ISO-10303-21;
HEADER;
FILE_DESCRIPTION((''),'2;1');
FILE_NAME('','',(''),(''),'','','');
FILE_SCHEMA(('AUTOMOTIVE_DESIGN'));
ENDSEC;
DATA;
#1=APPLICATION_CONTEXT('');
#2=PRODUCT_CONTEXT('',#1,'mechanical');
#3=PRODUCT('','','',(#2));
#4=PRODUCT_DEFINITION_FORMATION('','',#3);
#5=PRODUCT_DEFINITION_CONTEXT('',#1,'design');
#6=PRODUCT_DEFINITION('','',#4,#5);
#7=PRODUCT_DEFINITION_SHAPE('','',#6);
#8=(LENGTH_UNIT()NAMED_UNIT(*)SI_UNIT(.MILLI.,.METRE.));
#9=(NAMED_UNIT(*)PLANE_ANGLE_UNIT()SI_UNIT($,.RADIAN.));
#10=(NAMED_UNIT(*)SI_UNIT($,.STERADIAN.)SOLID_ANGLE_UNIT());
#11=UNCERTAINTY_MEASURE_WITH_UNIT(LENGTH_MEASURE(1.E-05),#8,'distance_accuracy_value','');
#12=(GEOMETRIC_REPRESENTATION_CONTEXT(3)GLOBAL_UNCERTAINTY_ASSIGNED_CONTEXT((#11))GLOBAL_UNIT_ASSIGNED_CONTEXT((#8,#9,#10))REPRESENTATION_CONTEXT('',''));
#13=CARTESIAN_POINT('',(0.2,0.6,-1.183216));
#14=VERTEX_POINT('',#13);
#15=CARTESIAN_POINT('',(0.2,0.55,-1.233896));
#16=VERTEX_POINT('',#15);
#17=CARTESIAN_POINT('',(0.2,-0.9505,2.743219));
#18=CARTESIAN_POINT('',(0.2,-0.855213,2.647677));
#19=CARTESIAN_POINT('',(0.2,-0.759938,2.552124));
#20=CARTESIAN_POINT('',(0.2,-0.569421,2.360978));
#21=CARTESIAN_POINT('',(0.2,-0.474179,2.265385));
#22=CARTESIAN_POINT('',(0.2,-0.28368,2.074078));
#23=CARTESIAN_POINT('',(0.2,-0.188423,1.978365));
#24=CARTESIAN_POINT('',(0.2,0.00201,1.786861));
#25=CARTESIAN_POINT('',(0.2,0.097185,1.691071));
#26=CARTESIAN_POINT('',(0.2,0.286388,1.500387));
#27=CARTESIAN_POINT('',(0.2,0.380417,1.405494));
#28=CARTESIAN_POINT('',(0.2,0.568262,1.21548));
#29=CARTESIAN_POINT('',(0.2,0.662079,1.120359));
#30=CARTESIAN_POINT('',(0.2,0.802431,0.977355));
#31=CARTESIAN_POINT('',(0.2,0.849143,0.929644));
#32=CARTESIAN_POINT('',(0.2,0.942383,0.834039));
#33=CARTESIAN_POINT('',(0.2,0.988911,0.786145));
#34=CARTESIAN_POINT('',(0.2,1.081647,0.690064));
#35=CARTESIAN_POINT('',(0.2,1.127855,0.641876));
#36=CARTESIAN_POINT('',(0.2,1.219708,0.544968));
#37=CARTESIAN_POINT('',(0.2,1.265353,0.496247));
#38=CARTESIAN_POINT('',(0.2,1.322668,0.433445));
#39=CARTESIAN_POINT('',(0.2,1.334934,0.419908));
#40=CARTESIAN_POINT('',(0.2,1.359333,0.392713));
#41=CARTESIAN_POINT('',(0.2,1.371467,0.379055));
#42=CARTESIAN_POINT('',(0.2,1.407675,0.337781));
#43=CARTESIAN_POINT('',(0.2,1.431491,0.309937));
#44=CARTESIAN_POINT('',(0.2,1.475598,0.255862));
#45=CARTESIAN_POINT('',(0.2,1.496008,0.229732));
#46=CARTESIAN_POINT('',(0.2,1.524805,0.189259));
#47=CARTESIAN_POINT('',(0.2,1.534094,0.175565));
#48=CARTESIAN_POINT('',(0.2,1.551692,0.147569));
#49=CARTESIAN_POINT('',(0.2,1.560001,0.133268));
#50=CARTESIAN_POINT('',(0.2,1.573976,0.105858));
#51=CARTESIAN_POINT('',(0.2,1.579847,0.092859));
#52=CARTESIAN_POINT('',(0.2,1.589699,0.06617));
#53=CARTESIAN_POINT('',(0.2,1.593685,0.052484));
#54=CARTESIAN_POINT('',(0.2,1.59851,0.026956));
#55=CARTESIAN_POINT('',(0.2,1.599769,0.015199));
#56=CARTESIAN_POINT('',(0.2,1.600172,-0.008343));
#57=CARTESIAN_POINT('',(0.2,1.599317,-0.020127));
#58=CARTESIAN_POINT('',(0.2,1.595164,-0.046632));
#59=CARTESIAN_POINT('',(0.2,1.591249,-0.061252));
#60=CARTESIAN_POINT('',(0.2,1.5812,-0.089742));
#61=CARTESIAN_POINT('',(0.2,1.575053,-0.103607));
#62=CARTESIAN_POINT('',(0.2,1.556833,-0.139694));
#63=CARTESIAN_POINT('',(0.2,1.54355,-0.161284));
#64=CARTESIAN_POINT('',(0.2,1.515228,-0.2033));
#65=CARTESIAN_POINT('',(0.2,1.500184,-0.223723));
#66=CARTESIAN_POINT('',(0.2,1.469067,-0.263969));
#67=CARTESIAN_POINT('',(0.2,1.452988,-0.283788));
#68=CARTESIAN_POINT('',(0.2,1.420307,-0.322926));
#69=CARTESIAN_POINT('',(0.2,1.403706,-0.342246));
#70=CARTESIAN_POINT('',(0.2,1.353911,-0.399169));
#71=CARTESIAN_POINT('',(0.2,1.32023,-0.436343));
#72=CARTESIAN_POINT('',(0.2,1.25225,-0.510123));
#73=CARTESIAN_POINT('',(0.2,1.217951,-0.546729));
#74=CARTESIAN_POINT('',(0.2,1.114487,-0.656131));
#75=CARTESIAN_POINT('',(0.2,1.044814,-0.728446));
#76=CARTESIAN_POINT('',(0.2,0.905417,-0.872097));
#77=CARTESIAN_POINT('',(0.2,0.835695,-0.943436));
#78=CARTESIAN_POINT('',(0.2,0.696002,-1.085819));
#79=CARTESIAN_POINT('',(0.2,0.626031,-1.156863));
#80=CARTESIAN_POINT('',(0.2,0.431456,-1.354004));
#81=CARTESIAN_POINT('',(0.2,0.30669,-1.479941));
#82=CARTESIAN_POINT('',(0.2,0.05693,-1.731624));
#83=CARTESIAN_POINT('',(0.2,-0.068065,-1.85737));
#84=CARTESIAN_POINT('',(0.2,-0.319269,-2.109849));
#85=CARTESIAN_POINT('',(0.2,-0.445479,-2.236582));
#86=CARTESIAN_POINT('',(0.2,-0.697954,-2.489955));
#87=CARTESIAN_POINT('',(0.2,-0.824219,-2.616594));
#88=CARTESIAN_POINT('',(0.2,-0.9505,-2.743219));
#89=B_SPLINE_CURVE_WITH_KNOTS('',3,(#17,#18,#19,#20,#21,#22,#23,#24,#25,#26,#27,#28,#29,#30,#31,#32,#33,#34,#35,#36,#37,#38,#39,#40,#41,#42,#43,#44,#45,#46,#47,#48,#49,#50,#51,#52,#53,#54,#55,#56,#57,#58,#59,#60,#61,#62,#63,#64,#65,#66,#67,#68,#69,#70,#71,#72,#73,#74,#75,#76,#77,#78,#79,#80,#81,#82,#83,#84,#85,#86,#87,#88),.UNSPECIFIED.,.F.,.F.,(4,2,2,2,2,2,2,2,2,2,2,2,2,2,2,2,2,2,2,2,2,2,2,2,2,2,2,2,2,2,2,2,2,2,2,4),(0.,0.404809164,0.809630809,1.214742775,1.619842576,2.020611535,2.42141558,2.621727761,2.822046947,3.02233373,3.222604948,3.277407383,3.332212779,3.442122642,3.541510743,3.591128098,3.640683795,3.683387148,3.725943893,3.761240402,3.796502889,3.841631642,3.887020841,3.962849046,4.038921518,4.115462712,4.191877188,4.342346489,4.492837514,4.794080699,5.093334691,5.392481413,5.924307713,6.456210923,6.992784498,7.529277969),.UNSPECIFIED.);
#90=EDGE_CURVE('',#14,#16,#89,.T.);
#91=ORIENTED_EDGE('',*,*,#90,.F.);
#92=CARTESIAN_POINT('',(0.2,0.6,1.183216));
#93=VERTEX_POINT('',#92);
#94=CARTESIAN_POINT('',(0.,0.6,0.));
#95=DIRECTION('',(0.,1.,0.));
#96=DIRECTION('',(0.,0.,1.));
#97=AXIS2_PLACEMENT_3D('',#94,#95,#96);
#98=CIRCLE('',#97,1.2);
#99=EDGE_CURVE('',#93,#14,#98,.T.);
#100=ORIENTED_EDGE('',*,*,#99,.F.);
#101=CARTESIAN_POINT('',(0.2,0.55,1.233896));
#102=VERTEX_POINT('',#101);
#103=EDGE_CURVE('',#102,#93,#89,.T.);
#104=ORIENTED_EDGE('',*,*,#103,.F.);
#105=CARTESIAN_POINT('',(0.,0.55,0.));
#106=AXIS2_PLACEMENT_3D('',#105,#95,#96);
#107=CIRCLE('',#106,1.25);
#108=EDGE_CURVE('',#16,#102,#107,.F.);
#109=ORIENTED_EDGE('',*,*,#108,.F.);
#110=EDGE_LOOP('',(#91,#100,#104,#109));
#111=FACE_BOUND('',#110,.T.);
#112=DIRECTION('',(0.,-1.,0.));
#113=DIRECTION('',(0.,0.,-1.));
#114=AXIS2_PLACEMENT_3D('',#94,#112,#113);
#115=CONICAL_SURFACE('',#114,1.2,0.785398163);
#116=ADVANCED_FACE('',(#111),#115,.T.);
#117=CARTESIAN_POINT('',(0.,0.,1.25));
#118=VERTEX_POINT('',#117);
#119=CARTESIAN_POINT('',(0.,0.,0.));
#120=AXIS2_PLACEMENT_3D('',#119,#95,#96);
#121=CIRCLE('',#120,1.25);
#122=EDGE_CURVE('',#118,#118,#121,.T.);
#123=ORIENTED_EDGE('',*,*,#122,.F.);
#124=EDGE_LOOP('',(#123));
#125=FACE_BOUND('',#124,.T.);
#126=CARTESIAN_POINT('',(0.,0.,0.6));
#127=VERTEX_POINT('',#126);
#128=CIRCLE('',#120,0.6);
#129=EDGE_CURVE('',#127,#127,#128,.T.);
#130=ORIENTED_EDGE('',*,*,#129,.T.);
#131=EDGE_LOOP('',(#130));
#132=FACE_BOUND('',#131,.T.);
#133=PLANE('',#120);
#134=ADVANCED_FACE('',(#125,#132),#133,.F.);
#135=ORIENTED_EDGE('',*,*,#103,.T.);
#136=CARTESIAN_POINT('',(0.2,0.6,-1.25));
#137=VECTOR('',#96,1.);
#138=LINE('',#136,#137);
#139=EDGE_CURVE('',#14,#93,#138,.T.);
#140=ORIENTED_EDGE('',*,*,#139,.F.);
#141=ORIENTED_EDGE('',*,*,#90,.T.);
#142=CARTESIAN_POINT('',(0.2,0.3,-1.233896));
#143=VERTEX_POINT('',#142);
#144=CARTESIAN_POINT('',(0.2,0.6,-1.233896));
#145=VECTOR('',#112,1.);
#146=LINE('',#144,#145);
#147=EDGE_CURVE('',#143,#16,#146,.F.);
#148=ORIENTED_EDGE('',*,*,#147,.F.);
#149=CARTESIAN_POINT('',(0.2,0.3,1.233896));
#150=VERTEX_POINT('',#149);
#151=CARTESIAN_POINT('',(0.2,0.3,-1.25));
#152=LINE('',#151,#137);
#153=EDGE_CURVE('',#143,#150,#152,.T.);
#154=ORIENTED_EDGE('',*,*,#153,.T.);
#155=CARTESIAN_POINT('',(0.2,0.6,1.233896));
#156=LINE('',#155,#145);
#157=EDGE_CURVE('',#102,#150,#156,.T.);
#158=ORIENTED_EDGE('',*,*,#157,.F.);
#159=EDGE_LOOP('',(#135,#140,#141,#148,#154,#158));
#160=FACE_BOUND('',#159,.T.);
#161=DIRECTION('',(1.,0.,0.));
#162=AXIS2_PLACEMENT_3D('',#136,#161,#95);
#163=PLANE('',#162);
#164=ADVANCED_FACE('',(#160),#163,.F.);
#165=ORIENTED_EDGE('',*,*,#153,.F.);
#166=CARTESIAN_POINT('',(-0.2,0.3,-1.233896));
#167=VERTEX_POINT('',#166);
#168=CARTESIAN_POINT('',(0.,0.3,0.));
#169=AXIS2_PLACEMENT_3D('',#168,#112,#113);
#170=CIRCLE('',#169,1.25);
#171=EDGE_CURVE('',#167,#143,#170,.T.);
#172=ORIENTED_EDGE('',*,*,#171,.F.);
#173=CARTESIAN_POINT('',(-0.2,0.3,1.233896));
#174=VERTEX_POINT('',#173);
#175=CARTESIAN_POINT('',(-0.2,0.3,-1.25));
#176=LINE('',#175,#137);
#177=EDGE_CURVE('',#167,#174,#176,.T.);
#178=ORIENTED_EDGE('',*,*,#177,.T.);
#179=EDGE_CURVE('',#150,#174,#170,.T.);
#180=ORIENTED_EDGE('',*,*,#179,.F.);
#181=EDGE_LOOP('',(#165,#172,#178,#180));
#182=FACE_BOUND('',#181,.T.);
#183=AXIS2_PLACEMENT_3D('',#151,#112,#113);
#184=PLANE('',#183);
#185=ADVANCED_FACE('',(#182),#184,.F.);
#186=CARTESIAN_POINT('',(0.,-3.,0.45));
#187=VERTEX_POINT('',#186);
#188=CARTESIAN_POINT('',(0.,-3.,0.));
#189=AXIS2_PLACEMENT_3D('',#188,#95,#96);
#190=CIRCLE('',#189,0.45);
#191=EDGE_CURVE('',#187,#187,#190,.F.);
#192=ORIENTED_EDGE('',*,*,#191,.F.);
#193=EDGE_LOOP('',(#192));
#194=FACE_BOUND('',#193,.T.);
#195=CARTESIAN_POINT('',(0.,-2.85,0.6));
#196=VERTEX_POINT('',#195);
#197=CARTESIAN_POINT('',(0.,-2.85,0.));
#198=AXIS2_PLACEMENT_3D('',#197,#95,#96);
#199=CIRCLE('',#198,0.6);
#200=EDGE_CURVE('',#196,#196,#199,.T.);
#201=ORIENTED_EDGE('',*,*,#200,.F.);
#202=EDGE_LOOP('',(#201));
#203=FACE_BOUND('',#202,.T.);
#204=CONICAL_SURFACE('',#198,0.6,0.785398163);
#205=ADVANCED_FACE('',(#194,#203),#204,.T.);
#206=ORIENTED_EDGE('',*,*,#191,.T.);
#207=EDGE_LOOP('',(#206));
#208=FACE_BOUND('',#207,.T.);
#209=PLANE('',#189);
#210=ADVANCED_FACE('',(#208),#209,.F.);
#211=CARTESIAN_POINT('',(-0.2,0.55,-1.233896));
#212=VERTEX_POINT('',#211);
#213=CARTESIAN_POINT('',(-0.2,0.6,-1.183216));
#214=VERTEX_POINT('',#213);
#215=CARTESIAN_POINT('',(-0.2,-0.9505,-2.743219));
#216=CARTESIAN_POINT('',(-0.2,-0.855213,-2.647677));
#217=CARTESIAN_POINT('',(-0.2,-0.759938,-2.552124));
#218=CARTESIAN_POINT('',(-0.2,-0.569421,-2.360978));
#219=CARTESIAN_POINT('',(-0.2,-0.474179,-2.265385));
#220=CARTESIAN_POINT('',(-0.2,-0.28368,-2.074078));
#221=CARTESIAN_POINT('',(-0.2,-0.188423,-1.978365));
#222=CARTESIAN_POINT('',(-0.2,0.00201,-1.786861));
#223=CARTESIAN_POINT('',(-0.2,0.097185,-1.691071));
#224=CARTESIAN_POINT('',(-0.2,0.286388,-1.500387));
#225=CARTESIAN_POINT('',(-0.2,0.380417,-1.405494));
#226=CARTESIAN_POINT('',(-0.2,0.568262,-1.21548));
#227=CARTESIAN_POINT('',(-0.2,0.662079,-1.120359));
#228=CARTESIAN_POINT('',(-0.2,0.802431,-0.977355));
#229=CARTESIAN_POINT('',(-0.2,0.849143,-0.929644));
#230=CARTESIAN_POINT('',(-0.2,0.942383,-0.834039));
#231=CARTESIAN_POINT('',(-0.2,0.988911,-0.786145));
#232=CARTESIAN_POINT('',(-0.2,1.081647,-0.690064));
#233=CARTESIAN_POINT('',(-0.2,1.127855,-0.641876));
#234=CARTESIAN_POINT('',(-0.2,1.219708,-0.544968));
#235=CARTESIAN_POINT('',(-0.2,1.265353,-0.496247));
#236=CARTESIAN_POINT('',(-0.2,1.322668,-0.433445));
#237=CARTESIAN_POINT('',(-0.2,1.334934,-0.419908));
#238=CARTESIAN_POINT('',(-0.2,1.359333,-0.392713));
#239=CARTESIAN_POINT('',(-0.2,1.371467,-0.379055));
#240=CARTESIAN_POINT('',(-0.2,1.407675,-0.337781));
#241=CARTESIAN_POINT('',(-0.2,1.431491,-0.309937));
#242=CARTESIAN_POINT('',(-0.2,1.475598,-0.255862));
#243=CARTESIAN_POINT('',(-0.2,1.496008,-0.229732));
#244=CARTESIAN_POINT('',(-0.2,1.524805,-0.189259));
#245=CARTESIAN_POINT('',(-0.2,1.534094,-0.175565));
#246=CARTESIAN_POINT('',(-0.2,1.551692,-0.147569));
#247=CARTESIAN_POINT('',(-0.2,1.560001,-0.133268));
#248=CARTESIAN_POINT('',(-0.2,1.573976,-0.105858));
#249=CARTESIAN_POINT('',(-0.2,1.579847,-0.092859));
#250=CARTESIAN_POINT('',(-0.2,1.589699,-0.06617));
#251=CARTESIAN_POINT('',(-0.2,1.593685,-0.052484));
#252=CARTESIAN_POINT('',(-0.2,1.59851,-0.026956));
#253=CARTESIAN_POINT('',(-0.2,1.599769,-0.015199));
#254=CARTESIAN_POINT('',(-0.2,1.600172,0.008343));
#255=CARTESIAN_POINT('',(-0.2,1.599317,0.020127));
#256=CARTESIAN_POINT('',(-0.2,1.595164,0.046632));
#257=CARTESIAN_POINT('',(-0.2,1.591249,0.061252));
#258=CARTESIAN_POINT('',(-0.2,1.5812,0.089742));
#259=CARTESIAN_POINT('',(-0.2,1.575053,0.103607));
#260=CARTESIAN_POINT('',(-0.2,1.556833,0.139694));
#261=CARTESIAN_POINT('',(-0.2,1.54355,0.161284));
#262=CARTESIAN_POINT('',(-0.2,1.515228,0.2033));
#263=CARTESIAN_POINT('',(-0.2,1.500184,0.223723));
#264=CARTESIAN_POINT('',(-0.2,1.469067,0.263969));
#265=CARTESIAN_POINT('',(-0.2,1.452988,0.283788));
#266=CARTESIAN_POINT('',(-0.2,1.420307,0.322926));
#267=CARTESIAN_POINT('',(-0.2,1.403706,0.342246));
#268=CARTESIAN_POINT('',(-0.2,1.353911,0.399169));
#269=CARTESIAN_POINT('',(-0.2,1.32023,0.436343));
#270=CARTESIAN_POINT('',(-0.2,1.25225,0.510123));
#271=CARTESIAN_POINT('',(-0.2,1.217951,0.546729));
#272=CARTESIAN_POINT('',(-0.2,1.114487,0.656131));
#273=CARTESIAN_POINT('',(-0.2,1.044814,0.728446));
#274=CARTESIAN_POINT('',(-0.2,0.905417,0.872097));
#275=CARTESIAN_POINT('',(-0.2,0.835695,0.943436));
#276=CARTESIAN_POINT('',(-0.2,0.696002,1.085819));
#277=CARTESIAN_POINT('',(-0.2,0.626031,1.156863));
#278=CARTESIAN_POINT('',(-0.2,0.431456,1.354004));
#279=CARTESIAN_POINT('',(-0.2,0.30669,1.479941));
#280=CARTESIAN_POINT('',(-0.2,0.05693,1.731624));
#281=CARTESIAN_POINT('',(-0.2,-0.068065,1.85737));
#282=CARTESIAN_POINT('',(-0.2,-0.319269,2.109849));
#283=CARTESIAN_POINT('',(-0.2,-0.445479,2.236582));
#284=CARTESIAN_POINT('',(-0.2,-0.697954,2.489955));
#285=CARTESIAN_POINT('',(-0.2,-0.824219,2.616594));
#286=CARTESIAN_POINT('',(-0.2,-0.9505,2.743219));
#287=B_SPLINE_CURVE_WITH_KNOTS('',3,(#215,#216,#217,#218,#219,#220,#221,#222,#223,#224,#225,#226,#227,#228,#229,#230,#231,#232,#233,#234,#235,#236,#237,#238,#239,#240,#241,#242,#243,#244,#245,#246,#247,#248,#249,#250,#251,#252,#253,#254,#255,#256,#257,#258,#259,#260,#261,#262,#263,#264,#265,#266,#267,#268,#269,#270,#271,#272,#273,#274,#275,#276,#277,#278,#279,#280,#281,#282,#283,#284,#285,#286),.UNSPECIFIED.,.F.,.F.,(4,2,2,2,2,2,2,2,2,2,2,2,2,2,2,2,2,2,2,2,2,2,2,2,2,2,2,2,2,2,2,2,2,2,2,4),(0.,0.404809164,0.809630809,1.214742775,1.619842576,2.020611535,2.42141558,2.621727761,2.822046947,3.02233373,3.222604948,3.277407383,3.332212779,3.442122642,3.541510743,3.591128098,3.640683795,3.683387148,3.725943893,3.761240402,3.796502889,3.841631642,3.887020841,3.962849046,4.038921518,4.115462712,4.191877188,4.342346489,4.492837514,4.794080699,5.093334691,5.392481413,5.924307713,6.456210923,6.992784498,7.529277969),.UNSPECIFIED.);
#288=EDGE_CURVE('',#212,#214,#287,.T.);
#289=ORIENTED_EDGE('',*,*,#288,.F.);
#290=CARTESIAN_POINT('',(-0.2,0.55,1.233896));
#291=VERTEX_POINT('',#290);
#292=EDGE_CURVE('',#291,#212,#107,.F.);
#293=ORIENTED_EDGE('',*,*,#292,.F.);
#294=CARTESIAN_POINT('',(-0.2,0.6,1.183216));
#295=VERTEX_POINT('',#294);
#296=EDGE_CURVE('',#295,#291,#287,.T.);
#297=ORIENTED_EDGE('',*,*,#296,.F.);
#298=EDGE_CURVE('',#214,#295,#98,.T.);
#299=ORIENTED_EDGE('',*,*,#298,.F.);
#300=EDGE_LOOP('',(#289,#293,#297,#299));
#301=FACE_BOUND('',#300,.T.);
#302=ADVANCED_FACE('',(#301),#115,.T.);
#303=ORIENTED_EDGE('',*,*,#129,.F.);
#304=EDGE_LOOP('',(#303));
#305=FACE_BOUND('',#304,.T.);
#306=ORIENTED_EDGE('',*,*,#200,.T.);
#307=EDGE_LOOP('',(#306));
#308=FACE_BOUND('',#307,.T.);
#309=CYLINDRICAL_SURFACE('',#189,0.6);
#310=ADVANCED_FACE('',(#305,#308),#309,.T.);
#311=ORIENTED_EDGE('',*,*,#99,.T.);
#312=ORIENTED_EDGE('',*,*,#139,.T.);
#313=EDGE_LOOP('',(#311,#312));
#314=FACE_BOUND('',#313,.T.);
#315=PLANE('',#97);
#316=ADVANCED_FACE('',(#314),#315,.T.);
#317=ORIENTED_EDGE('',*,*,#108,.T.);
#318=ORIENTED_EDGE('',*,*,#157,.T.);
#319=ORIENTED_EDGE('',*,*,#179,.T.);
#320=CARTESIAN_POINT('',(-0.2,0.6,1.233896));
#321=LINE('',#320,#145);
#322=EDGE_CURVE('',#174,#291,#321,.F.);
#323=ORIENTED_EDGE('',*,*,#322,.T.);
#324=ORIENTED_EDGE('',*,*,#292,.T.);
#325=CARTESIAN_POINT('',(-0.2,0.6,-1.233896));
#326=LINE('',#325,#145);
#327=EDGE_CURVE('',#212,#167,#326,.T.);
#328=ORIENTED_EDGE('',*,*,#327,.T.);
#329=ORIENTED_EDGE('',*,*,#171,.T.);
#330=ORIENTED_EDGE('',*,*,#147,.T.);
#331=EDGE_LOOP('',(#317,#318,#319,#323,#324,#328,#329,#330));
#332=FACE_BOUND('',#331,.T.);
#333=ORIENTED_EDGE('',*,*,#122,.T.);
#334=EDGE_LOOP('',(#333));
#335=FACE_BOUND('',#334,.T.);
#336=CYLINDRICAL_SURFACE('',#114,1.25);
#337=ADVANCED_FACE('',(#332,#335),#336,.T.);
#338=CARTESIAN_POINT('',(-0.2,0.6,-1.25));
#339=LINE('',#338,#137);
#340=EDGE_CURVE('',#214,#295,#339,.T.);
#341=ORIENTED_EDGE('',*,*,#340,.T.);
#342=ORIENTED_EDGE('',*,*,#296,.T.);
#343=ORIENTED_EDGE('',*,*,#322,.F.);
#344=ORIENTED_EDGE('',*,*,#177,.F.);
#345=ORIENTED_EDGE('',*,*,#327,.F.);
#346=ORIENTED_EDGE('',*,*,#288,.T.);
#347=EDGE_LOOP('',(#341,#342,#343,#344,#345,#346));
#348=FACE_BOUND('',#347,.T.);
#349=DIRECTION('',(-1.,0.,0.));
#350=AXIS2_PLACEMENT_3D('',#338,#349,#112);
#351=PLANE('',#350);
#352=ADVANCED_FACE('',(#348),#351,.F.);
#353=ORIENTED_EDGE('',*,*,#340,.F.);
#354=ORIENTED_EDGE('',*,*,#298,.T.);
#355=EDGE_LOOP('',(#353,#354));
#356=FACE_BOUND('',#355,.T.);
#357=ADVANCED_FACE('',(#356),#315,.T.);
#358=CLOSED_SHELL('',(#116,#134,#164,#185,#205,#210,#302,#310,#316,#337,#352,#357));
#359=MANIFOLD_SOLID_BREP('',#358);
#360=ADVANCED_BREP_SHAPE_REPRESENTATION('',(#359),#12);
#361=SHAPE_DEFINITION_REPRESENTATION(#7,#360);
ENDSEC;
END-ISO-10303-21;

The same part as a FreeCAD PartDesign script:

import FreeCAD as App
import Part
import Sketcher

V = App.Vector


def edges_at(feature, points):
    """Names of the edges that pass closest to the given points."""
    edges = feature.Shape.Edges
    near = lambda p: min(range(len(edges)), key=lambda i: edges[i].distToShape(Part.Vertex(*p))[0])
    return sorted({f"Edge{near(p) + 1}" for p in points})


def add_polygon(sketch, points):
    """Adds a closed chain of lines whose ends are joined by coincident constraints."""
    first, n = sketch.GeometryCount, len(points)
    for a, b in zip(points, points[1:] + points[:1]):
        sketch.addGeometry(Part.LineSegment(App.Vector(*a, 0), App.Vector(*b, 0)), False)
    for i in range(n):
        sketch.addConstraint(Sketcher.Constraint("Coincident", first + i, 2, first + (i + 1) % n, 1))

doc = App.newDocument("Part")
body = doc.addObject("PartDesign::Body", "Body")

# Sketch on XZ plane
sketch1 = body.newObject("Sketcher::SketchObject", "Sketch")
sketch1.AttachmentSupport = (doc.getObject("XZ_Plane"), [""])
sketch1.MapMode = "FlatFace"
sketch1.addGeometry(Part.Circle(V(0, 0, 0), V(0, 0, 1), 1.2), False)
sketch1.addConstraint([
    Sketcher.Constraint("Coincident", 0, 3, -1, 1),
    Sketcher.Constraint("Diameter", 0, 2.5),
])
pad1 = body.newObject("PartDesign::Pad", "Pad")
pad1.Profile = sketch1
pad1.Length = 0.6
pad1.Reversed = True

# Sketch on XZ plane
sketch2 = body.newObject("Sketcher::SketchObject", "Sketch001")
sketch2.AttachmentSupport = (doc.getObject("XZ_Plane"), [""])
sketch2.MapMode = "FlatFace"
sketch2.addGeometry(Part.Circle(V(0, 0, 0), V(0, 0, 1), 0.6), False)
sketch2.addConstraint([
    Sketcher.Constraint("Coincident", 0, 3, -1, 1),
    Sketcher.Constraint("Diameter", 0, 1.2),
])
pad2 = body.newObject("PartDesign::Pad", "Pad001")
pad2.Profile = sketch2
pad2.Length = 3
doc.recompute()

chamfer = body.newObject("PartDesign::Chamfer", "Chamfer")
chamfer.Base = (pad2, edges_at(pad2, [(-1.25, 0.6, 0)]))
chamfer.Size = 0.05
doc.recompute()

chamfer2 = body.newObject("PartDesign::Chamfer", "Chamfer001")
chamfer2.Base = (chamfer, edges_at(chamfer, [(-0.6, -3, 0)]))
chamfer2.Size = 0.15

# Sketch on XY plane
sketch3 = body.newObject("Sketcher::SketchObject", "Sketch002")
sketch3.AttachmentSupport = (doc.getObject("XY_Plane"), [""])
sketch3.MapMode = "FlatFace"
add_polygon(sketch3, [(0.2, 0.6), (-0.2, 0.6), (-0.2, 0.3), (0.2, 0.3)])  # lines 0-3
sketch3.addConstraint([
    Sketcher.Constraint("Horizontal", 0),
    Sketcher.Constraint("Vertical", 1),
    Sketcher.Constraint("Horizontal", 2),
    Sketcher.Constraint("Vertical", 3),
    Sketcher.Constraint("DistanceX", 0, 2, 0, 1, 0.4),
    Sketcher.Constraint("DistanceY", 1, 2, 1, 1, 0.3),
    Sketcher.Constraint("DistanceX", 0, 2, -1, 1, 0.2),
    Sketcher.Constraint("DistanceY", -1, 1, 0, 2, 0.6),
])
pocket1 = body.newObject("PartDesign::Pocket", "Pocket")
pocket1.Profile = sketch3
pocket1.Type = "ThroughAll"
pocket1.Midplane = True

doc.recompute()
